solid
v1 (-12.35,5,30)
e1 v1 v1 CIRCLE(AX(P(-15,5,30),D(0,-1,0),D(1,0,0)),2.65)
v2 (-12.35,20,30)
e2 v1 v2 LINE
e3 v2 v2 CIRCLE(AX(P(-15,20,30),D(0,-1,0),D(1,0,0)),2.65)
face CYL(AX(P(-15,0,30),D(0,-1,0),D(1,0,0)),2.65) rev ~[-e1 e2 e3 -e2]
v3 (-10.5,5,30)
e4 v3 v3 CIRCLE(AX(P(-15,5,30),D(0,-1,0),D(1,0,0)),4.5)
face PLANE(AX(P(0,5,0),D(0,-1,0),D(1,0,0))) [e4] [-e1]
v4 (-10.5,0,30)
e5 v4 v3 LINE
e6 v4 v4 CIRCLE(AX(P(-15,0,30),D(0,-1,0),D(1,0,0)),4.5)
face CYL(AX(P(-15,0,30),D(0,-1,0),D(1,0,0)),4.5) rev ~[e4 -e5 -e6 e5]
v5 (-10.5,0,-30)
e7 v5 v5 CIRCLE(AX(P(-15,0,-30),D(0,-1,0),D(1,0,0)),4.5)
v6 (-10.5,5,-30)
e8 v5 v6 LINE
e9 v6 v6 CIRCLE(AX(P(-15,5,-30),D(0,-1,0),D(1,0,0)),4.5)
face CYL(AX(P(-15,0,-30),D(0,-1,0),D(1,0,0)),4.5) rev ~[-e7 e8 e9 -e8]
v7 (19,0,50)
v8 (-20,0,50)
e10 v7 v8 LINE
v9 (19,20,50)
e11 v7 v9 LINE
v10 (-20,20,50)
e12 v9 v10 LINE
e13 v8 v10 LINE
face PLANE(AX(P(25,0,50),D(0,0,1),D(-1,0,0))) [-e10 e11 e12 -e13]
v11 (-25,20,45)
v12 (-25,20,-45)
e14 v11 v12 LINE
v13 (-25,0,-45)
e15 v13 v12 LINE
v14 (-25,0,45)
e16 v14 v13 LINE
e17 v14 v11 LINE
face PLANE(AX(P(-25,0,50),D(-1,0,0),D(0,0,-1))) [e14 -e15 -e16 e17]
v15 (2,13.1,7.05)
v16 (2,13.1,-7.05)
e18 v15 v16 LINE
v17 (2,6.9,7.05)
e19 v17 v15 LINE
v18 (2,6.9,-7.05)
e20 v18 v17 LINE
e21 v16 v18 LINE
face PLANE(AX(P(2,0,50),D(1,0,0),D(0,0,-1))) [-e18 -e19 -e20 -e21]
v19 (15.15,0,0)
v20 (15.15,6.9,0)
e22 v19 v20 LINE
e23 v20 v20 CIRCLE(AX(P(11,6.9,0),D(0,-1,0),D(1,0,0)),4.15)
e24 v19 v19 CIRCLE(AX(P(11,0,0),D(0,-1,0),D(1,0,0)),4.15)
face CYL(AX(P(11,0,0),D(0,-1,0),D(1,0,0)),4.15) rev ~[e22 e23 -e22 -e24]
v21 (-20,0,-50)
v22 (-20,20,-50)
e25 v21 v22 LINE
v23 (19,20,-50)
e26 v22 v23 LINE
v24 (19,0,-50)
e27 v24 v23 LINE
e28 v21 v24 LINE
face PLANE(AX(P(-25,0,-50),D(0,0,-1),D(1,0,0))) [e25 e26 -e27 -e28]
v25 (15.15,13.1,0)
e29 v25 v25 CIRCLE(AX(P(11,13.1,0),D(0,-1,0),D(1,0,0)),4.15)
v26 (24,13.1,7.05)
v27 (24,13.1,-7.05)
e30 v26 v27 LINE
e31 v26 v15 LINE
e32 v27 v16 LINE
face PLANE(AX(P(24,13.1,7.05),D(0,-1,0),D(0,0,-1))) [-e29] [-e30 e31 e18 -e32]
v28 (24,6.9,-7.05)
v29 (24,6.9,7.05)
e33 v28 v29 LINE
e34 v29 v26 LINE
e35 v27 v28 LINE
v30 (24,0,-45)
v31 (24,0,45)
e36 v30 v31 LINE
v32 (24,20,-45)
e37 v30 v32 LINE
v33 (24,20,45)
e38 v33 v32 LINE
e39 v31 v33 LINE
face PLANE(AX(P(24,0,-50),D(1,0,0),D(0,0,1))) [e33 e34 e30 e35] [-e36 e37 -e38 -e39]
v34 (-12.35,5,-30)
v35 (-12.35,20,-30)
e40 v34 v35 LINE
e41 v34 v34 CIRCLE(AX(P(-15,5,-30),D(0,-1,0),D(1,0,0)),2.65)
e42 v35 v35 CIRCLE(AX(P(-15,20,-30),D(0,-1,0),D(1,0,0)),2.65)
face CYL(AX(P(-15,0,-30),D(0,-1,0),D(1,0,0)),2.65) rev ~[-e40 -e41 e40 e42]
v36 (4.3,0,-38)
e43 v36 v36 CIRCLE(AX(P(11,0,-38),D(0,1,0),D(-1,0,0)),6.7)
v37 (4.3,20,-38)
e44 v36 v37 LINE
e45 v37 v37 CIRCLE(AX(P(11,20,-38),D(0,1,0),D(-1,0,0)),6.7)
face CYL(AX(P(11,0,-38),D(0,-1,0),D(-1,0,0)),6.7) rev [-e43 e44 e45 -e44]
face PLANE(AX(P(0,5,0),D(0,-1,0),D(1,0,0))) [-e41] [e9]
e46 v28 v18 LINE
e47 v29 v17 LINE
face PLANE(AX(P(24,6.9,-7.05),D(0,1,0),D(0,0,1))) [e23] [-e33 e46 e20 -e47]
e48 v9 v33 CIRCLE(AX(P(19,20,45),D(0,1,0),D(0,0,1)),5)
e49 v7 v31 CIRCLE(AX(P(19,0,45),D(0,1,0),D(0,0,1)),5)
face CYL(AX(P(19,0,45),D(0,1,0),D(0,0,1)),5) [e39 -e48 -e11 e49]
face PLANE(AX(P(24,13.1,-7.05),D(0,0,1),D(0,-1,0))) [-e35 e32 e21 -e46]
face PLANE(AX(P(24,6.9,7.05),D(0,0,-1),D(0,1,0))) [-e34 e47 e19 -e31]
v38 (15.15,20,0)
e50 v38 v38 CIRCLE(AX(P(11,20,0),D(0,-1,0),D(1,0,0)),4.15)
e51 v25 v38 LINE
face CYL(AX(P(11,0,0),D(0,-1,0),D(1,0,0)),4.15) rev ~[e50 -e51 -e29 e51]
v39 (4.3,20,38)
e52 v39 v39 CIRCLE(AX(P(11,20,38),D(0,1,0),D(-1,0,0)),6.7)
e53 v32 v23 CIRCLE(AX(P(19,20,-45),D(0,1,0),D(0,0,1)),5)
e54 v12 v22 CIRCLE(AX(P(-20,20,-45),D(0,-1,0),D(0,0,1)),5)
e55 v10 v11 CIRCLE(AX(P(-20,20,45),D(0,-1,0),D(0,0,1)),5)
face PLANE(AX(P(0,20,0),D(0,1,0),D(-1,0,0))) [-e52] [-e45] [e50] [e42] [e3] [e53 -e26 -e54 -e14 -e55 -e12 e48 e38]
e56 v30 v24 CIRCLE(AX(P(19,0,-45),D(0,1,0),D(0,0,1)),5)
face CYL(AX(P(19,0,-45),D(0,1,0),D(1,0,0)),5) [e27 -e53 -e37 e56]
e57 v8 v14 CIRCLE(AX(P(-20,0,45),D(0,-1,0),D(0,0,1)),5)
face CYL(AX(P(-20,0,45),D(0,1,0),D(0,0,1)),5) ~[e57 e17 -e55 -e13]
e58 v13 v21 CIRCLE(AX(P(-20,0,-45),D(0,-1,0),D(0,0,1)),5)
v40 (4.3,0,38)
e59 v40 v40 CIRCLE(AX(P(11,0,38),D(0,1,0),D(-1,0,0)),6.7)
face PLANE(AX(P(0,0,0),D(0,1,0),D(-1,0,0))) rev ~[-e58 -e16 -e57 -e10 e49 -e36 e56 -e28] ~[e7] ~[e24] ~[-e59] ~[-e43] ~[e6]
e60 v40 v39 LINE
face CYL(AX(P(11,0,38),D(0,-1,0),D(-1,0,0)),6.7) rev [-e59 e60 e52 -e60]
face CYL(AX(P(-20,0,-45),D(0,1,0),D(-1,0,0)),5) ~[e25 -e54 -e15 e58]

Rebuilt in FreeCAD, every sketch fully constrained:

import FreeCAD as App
import Part
import Sketcher

V = App.Vector
Q = App.Units.Quantity


def edges_at(feature, points):
    """Names of the edges that pass closest to the given points."""
    edges = feature.Shape.Edges
    near = lambda p: min(range(len(edges)), key=lambda i: edges[i].distToShape(Part.Vertex(*p))[0])
    return sorted({f"Edge{near(p) + 1}" for p in points})

doc = App.newDocument("Part")
body = doc.addObject("PartDesign::Body", "Body")

# Sketch on XZ plane
sketch1 = body.newObject("Sketcher::SketchObject", "Sketch")
sketch1.AttachmentSupport = (doc.getObject("XZ_Plane"), [""])
sketch1.MapMode = "FlatFace"
sketch1.addGeometry([
    Part.LineSegment(V(-25, 50, 0), V(25, 50, 0)),  # 0
    Part.LineSegment(V(25, 50, 0), V(25, -50, 0)),  # 1
    Part.LineSegment(V(25, -50, 0), V(-25, -50, 0)),  # 2
    Part.LineSegment(V(-25, -50, 0), V(-25, 50, 0)),  # 3
    Part.Circle(V(11, -38, 0), V(0, 0, 1), 7),  # 4
    Part.Circle(V(11, 38, 0), V(0, 0, 1), 7),  # 5
], False)
sketch1.addConstraint([
    Sketcher.Constraint("Coincident", 0, 2, 1, 1),
    Sketcher.Constraint("Coincident", 1, 2, 2, 1),
    Sketcher.Constraint("Coincident", 2, 2, 3, 1),
    Sketcher.Constraint("Coincident", 3, 2, 0, 1),
    Sketcher.Constraint("Horizontal", 0),
    Sketcher.Constraint("Vertical", 1),
    Sketcher.Constraint("Horizontal", 2),
    Sketcher.Constraint("Vertical", 3),
    Sketcher.Constraint("Equal", 4, 5),
    Sketcher.Constraint("Symmetric", 0, 2, 2, 2, -1, 1),
    Sketcher.Constraint("Symmetric", 4, 3, 5, 3, -1),
    Sketcher.Constraint("Diameter", 4, Q("13.4 mm")),
    Sketcher.Constraint("DistanceX", 0, 1, 0, 2, Q("50 mm")),
    Sketcher.Constraint("DistanceY", 1, 2, 1, 1, Q("100 mm")),
    Sketcher.Constraint("DistanceX", 5, 3, 0, 2, Q("14 mm")),
    Sketcher.Constraint("DistanceY", 5, 3, 0, 2, Q("12 mm")),
])
pad1 = body.newObject("PartDesign::Pad", "Pad")
pad1.Profile = sketch1
pad1.Length = 20
pad1.Reversed = True

# Sketch on XZ plane
sketch2 = body.newObject("Sketcher::SketchObject", "Sketch001")
sketch2.AttachmentSupport = (doc.getObject("XZ_Plane"), [""])
sketch2.MapMode = "FlatFace"
sketch2.addGeometry([
    Part.Circle(V(-15, -30, 0), V(0, 0, 1), 2.6),
    Part.Circle(V(-15, 30, 0), V(0, 0, 1), 2.6),
], False)
sketch2.addConstraint([
    Sketcher.Constraint("Equal", 0, 1),
    Sketcher.Constraint("Symmetric", 0, 3, 1, 3, -1),
    Sketcher.Constraint("Diameter", 0, Q("5.3 mm")),
    Sketcher.Constraint("DistanceX", 0, 3, -1, 1, Q("15 mm")),
    Sketcher.Constraint("DistanceY", 0, 3, -1, 1, Q("30 mm")),
])
pocket1 = body.newObject("PartDesign::Pocket", "Pocket")
pocket1.Profile = sketch2
pocket1.Type = "ThroughAll"

# Sketch on XZ plane
sketch3 = body.newObject("Sketcher::SketchObject", "Sketch002")
sketch3.AttachmentSupport = (doc.getObject("XZ_Plane"), [""])
sketch3.MapMode = "FlatFace"
sketch3.addGeometry([
    Part.LineSegment(V(25, -50, 0), V(25, 50, 0)),
    Part.LineSegment(V(25, 50, 0), V(24, 50, 0)),
    Part.LineSegment(V(24, 50, 0), V(24, -50, 0)),
    Part.LineSegment(V(24, -50, 0), V(25, -50, 0)),
], False)
sketch3.addConstraint([
    Sketcher.Constraint("Coincident", 0, 2, 1, 1),
    Sketcher.Constraint("Coincident", 1, 2, 2, 1),
    Sketcher.Constraint("Coincident", 2, 2, 3, 1),
    Sketcher.Constraint("Coincident", 3, 2, 0, 1),
    Sketcher.Constraint("Vertical", 0),
    Sketcher.Constraint("Horizontal", 1),
    Sketcher.Constraint("Vertical", 2),
    Sketcher.Constraint("Horizontal", 3),
    Sketcher.Constraint("DistanceX", 1, 2, 1, 1, Q("1 mm")),
    Sketcher.Constraint("DistanceY", 0, 1, 0, 2, Q("100 mm")),
    Sketcher.Constraint("DistanceX", -1, 1, 0, 2, Q("25 mm")),
    Sketcher.Constraint("DistanceY", -1, 1, 0, 2, Q("50 mm")),
])
pocket2 = body.newObject("PartDesign::Pocket", "Pocket001")
pocket2.Profile = sketch3
pocket2.Type = "ThroughAll"
doc.recompute()

fillet = body.newObject("PartDesign::Fillet", "Fillet")
fillet.Base = (pocket2, edges_at(pocket2, [(-25, 10, 50), (-25, 10, -50)]))
fillet.Radius = 5

# Sketch on XZ plane
sketch4 = body.newObject("Sketcher::SketchObject", "Sketch003")
sketch4.AttachmentSupport = (doc.getObject("XZ_Plane"), [""])
sketch4.MapMode = "FlatFace"
sketch4.addGeometry(Part.Circle(V(11, 0, 0), V(0, 0, 1), 4.2), False)
sketch4.addConstraint([
    Sketcher.Constraint("PointOnObject", 0, 3, -1),
    Sketcher.Constraint("Diameter", 0, Q("8.3 mm")),
    Sketcher.Constraint("DistanceX", -1, 1, 0, 3, Q("11 mm")),
])
pocket3 = body.newObject("PartDesign::Pocket", "Pocket002")
pocket3.Profile = sketch4
pocket3.Type = "ThroughAll"

# Sketch on YZ plane
sketch5 = body.newObject("Sketcher::SketchObject", "Sketch004")
sketch5.AttachmentSupport = (doc.getObject("YZ_Plane"), [""])
sketch5.MapMode = "FlatFace"
sketch5.AttachmentOffset = App.Placement(V(0, 0, 24), App.Rotation())
sketch5.addGeometry([
    Part.LineSegment(V(7, 7, 0), V(7, -7, 0)),
    Part.LineSegment(V(7, -7, 0), V(13, -7, 0)),
    Part.LineSegment(V(13, -7, 0), V(13, 7, 0)),
    Part.LineSegment(V(13, 7, 0), V(7, 7, 0)),
], False)
sketch5.addConstraint([
    Sketcher.Constraint("Coincident", 0, 2, 1, 1),
    Sketcher.Constraint("Coincident", 1, 2, 2, 1),
    Sketcher.Constraint("Coincident", 2, 2, 3, 1),
    Sketcher.Constraint("Coincident", 3, 2, 0, 1),
    Sketcher.Constraint("Vertical", 0),
    Sketcher.Constraint("Horizontal", 1),
    Sketcher.Constraint("Vertical", 2),
    Sketcher.Constraint("Horizontal", 3),
    Sketcher.Constraint("DistanceX", 1, 1, 1, 2, Q("6.2 mm")),
    Sketcher.Constraint("DistanceY", 0, 2, 0, 1, Q("14.1 mm")),
    Sketcher.Constraint("DistanceX", -1, 1, 0, 2, Q("6.9 mm")),
    Sketcher.Constraint("DistanceY", 0, 2, -1, 1, Q("7.05 mm")),
])
pocket4 = body.newObject("PartDesign::Pocket", "Pocket003")
pocket4.Profile = sketch5
pocket4.Length = 22
doc.recompute()

fillet2 = body.newObject("PartDesign::Fillet", "Fillet001")
fillet2.Base = (pocket4, edges_at(pocket4, [(24, 10, -50), (24, 10, 50)]))
fillet2.Radius = 5

# Sketch on XZ plane
sketch6 = body.newObject("Sketcher::SketchObject", "Sketch005")
sketch6.AttachmentSupport = (doc.getObject("XZ_Plane"), [""])
sketch6.MapMode = "FlatFace"
sketch6.addGeometry([
    Part.Circle(V(-15, -30, 0), V(0, 0, 1), 4.5),
    Part.Circle(V(-15, -30, 0), V(0, 0, 1), 2.6),
    Part.Circle(V(-15, 30, 0), V(0, 0, 1), 4.5),
], False)
sketch6.addConstraint([
    Sketcher.Constraint("Coincident", 1, 3, 0, 3),
    Sketcher.Constraint("Equal", 0, 2),
    Sketcher.Constraint("Symmetric", 0, 3, 2, 3, -1),
    Sketcher.Constraint("Diameter", 0, Q("9 mm")),
    Sketcher.Constraint("Diameter", 1, Q("5.3 mm")),
    Sketcher.Constraint("DistanceX", 0, 3, -1, 1, Q("15 mm")),
    Sketcher.Constraint("DistanceY", 0, 3, -1, 1, Q("30 mm")),
])
pocket5 = body.newObject("PartDesign::Pocket", "Pocket004")
pocket5.Profile = sketch6
pocket5.Length = 5

doc.recompute()
